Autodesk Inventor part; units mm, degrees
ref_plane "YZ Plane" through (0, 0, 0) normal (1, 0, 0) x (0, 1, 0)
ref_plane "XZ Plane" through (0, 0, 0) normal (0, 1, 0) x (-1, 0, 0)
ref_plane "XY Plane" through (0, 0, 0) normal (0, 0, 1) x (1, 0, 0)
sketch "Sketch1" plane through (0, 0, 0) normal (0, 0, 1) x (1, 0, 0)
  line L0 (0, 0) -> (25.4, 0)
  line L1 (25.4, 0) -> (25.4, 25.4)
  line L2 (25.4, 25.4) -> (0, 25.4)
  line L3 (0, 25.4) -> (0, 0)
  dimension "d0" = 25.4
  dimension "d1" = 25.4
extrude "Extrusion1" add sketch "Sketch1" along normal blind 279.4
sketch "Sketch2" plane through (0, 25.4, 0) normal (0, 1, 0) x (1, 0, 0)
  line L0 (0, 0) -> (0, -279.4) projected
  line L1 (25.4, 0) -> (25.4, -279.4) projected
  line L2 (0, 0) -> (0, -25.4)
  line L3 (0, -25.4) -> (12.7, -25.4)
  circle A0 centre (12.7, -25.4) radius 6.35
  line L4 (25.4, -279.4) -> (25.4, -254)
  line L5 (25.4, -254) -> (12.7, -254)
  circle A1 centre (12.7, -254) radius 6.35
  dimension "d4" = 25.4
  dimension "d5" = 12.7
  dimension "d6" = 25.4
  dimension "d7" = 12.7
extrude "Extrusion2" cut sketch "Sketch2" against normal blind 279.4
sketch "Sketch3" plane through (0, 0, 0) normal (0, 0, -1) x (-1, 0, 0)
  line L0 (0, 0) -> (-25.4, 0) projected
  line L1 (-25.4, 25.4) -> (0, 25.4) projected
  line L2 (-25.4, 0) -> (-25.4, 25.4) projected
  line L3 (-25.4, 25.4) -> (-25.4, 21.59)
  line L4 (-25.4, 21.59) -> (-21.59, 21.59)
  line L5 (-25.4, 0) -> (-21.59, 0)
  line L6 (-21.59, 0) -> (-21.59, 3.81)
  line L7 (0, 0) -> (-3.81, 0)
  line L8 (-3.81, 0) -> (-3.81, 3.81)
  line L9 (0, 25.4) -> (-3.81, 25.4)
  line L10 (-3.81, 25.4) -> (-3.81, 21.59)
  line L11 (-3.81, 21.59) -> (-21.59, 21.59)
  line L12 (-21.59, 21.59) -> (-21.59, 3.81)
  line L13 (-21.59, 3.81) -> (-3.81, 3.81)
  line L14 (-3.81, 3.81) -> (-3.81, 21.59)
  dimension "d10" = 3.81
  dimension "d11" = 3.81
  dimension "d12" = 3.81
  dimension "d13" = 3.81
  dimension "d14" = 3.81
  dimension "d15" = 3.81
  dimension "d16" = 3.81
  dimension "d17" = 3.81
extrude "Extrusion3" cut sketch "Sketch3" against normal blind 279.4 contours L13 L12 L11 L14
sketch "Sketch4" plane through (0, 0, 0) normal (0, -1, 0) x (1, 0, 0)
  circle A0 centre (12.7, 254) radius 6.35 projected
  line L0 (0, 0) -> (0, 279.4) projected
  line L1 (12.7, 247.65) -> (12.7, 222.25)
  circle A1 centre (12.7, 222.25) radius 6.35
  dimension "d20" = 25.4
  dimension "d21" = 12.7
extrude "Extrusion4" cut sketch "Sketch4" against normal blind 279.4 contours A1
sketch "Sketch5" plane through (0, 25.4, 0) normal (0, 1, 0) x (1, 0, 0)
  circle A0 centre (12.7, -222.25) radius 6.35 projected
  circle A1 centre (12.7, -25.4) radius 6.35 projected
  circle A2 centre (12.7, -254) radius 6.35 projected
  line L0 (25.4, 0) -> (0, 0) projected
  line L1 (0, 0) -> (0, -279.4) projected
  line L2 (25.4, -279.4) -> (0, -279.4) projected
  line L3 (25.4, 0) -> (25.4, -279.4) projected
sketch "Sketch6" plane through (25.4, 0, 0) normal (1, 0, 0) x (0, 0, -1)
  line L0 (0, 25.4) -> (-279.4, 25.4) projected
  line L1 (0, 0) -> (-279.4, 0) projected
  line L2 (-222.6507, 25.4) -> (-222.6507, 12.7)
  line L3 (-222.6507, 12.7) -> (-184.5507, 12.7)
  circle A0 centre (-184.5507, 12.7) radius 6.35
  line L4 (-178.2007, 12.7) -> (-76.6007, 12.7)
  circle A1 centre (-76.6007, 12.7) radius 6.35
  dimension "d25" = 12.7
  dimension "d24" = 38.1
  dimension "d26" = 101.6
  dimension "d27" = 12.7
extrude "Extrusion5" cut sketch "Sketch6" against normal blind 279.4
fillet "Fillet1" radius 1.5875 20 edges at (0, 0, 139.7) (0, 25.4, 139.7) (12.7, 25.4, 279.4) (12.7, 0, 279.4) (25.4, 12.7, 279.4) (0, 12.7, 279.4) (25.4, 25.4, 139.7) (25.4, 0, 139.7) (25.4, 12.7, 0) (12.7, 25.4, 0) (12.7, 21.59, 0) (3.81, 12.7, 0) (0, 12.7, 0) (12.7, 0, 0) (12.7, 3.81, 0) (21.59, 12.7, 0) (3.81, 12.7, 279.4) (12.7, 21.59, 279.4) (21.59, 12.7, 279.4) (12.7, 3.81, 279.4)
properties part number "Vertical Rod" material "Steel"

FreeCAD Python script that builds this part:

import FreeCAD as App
import Part
import Sketcher
Q = App.Units.Quantity


def edges_at(feature, points):
    """Names of the edges that pass closest to the given points."""
    edges = feature.Shape.Edges
    near = lambda p: min(range(len(edges)), key=lambda i: edges[i].distToShape(Part.Vertex(*p))[0])
    return sorted({f"Edge{near(p) + 1}" for p in points})

doc = App.newDocument("Part")
params = doc.addObject("Spreadsheet::Sheet", "Params")
for row, (alias, value) in enumerate([
    ("sketch1_width", "1 in"),
    ("pad1_length", "11 in"),
    ("sketch2_diameter", "0.5 in"),
    ("pocket1_length", "11 in"),
    ("sketch3_width", "0.7 in"),
    ("pocket2_length", "11 in"),
    ("sketch4_diameter", "0.5 in"),
    ("pocket3_length", "11 in"),
    ("sketch5_diameter", "0.5 in"),
    ("pocket4_length", "11 in"),
    ("fillet_radius", "0.0625 in"),
], start=1):
    params.set(f"A{row}", alias)
    params.set(f"B{row}", "=" + value)
    params.setAlias(f"B{row}", alias)

body = doc.addObject("PartDesign::Body", "Body")

sketch1 = body.newObject("Sketcher::SketchObject", "Sketch")
sketch1.AttachmentSupport = (doc.getObject("XY_Plane"), [""])
sketch1.MapMode = "FlatFace"
sketch1.addGeometry([
    Part.LineSegment(App.Vector(0, 25, 0), App.Vector(0, 0, 0)),
    Part.LineSegment(App.Vector(0, 0, 0), App.Vector(25, 0, 0)),
    Part.LineSegment(App.Vector(25, 0, 0), App.Vector(25, 25, 0)),
    Part.LineSegment(App.Vector(25, 25, 0), App.Vector(0, 25, 0)),
], False)
sketch1.addConstraint([
    Sketcher.Constraint("Coincident", 0, 2, 1, 1),
    Sketcher.Constraint("Coincident", 1, 2, 2, 1),
    Sketcher.Constraint("Coincident", 2, 2, 3, 1),
    Sketcher.Constraint("Coincident", 3, 2, 0, 1),
    Sketcher.Constraint("Vertical", 0),
    Sketcher.Constraint("Horizontal", 1),
    Sketcher.Constraint("Vertical", 2),
    Sketcher.Constraint("Horizontal", 3),
    Sketcher.Constraint("Coincident", 0, 2, -1, 1),
    Sketcher.Constraint("Equal", 3, 0),
    Sketcher.Constraint("DistanceX", 1, 1, 1, 2, Q("1 in")),
])
sketch1.setExpression("Constraints[10]", "Params.sketch1_width")
pad1 = body.newObject("PartDesign::Pad", "Pad")
pad1.Profile = sketch1
pad1.setExpression("Length", "Params.pad1_length")

sketch2 = body.newObject("Sketcher::SketchObject", "Sketch001")
sketch2.AttachmentSupport = (doc.getObject("XZ_Plane"), [""])
sketch2.MapMode = "FlatFace"
sketch2.AttachmentOffset = App.Placement(App.Vector(0, 0, -1 * 25.4), App.Rotation())
sketch2.addGeometry([
    Part.Circle(App.Vector(13, 25, 0), App.Vector(0, 0, 1), 6),
    Part.Circle(App.Vector(13, 254, 0), App.Vector(0, 0, 1), 6),
], False)
sketch2.addConstraint([
    Sketcher.Constraint("Equal", 0, 1),
    Sketcher.Constraint("Vertical", 0, 3, 1, 3),
    Sketcher.Constraint("Diameter", 0, Q("0.5 in")),
    Sketcher.Constraint("DistanceY", -1, 1, 0, 3, Q("1 in")),
    Sketcher.Constraint("DistanceX", -1, 1, 0, 3, Q("0.5 in")),
    Sketcher.Constraint("DistanceY", -1, 1, 1, 3, Q("10 in")),
])
sketch2.setExpression("Constraints[2]", "Params.sketch2_diameter")
pocket1 = body.newObject("PartDesign::Pocket", "Pocket")
pocket1.Profile = sketch2
pocket1.setExpression("Length", "Params.pocket1_length")
pocket1.Reversed = True

sketch3 = body.newObject("Sketcher::SketchObject", "Sketch002")
sketch3.AttachmentSupport = (doc.getObject("XY_Plane"), [""])
sketch3.MapMode = "FlatFace"
sketch3.addGeometry([
    Part.LineSegment(App.Vector(22, 4, 0), App.Vector(4, 4, 0)),
    Part.LineSegment(App.Vector(4, 4, 0), App.Vector(4, 22, 0)),
    Part.LineSegment(App.Vector(4, 22, 0), App.Vector(22, 22, 0)),
    Part.LineSegment(App.Vector(22, 22, 0), App.Vector(22, 4, 0)),
], False)
sketch3.addConstraint([
    Sketcher.Constraint("Coincident", 0, 2, 1, 1),
    Sketcher.Constraint("Coincident", 1, 2, 2, 1),
    Sketcher.Constraint("Coincident", 2, 2, 3, 1),
    Sketcher.Constraint("Coincident", 3, 2, 0, 1),
    Sketcher.Constraint("Horizontal", 0),
    Sketcher.Constraint("Vertical", 1),
    Sketcher.Constraint("Horizontal", 2),
    Sketcher.Constraint("Vertical", 3),
    Sketcher.Constraint("Equal", 2, 1),
    Sketcher.Constraint("DistanceX", -1, 1, 0, 2, Q("0.15 in")),
    Sketcher.Constraint("DistanceY", -1, 1, 0, 2, Q("0.15 in")),
    Sketcher.Constraint("DistanceX", 0, 2, 0, 1, Q("0.7 in")),
])
sketch3.setExpression("Constraints[11]", "Params.sketch3_width")
pocket2 = body.newObject("PartDesign::Pocket", "Pocket001")
pocket2.Profile = sketch3
pocket2.setExpression("Length", "Params.pocket2_length")
pocket2.Reversed = True

sketch4 = body.newObject("Sketcher::SketchObject", "Sketch003")
sketch4.AttachmentSupport = (doc.getObject("XZ_Plane"), [""])
sketch4.MapMode = "FlatFace"
sketch4.addGeometry(Part.Circle(App.Vector(13, 222, 0), App.Vector(0, 0, 1), 6), False)
sketch4.addConstraint([
    Sketcher.Constraint("Diameter", 0, Q("0.5 in")),
    Sketcher.Constraint("DistanceX", -1, 1, 0, 3, Q("0.5 in")),
    Sketcher.Constraint("DistanceY", -1, 1, 0, 3, Q("8.75 in")),
])
sketch4.setExpression("Constraints[0]", "Params.sketch4_diameter")
pocket3 = body.newObject("PartDesign::Pocket", "Pocket002")
pocket3.Profile = sketch4
pocket3.setExpression("Length", "Params.pocket3_length")

sketch5 = body.newObject("Sketcher::SketchObject", "Sketch004")
sketch5.AttachmentSupport = (doc.getObject("YZ_Plane"), [""])
sketch5.MapMode = "FlatFace"
sketch5.AttachmentOffset = App.Placement(App.Vector(0, 0, 1 * 25.4), App.Rotation())
sketch5.addGeometry([
    Part.Circle(App.Vector(13, 185, 0), App.Vector(0, 0, 1), 6),
    Part.Circle(App.Vector(13, 77, 0), App.Vector(0, 0, 1), 6),
], False)
sketch5.addConstraint([
    Sketcher.Constraint("Equal", 0, 1),
    Sketcher.Constraint("Vertical", 0, 3, 1, 3),
    Sketcher.Constraint("Diameter", 0, Q("0.5 in")),
    Sketcher.Constraint("DistanceX", -1, 1, 0, 3, Q("0.5 in")),
    Sketcher.Constraint("DistanceY", 1, 3, 0, 3, Q("4.25 in")),
    Sketcher.Constraint("DistanceY", -1, 1, 0, 3, Q("184.5507 mm")),
])
sketch5.setExpression("Constraints[2]", "Params.sketch5_diameter")
pocket4 = body.newObject("PartDesign::Pocket", "Pocket003")
pocket4.Profile = sketch5
pocket4.setExpression("Length", "Params.pocket4_length")
doc.recompute()

fillet = body.newObject("PartDesign::Fillet", "Fillet")
fillet.Base = (pocket4, edges_at(pocket4, [
    (0, 0, 139.7),
    (0, 25.4, 139.7),
    (12.7, 25.4, 279.4),
    (12.7, 0, 279.4),
    (25.4, 12.7, 279.4),
    (0, 12.7, 279.4),
    (25.4, 25.4, 139.7),
    (25.4, 0, 139.7),
    (25.4, 12.7, 0),
    (12.7, 25.4, 0),
    (12.7, 21.59, 0),
    (3.81, 12.7, 0),
    (0, 12.7, 0),
    (12.7, 0, 0),
    (12.7, 3.81, 0),
    (21.59, 12.7, 0),
    (3.81, 12.7, 279.4),
    (12.7, 21.59, 279.4),
    (21.59, 12.7, 279.4),
    (12.7, 3.81, 279.4),
]))
fillet.setExpression("Radius", "Params.fillet_radius")

doc.recompute()
